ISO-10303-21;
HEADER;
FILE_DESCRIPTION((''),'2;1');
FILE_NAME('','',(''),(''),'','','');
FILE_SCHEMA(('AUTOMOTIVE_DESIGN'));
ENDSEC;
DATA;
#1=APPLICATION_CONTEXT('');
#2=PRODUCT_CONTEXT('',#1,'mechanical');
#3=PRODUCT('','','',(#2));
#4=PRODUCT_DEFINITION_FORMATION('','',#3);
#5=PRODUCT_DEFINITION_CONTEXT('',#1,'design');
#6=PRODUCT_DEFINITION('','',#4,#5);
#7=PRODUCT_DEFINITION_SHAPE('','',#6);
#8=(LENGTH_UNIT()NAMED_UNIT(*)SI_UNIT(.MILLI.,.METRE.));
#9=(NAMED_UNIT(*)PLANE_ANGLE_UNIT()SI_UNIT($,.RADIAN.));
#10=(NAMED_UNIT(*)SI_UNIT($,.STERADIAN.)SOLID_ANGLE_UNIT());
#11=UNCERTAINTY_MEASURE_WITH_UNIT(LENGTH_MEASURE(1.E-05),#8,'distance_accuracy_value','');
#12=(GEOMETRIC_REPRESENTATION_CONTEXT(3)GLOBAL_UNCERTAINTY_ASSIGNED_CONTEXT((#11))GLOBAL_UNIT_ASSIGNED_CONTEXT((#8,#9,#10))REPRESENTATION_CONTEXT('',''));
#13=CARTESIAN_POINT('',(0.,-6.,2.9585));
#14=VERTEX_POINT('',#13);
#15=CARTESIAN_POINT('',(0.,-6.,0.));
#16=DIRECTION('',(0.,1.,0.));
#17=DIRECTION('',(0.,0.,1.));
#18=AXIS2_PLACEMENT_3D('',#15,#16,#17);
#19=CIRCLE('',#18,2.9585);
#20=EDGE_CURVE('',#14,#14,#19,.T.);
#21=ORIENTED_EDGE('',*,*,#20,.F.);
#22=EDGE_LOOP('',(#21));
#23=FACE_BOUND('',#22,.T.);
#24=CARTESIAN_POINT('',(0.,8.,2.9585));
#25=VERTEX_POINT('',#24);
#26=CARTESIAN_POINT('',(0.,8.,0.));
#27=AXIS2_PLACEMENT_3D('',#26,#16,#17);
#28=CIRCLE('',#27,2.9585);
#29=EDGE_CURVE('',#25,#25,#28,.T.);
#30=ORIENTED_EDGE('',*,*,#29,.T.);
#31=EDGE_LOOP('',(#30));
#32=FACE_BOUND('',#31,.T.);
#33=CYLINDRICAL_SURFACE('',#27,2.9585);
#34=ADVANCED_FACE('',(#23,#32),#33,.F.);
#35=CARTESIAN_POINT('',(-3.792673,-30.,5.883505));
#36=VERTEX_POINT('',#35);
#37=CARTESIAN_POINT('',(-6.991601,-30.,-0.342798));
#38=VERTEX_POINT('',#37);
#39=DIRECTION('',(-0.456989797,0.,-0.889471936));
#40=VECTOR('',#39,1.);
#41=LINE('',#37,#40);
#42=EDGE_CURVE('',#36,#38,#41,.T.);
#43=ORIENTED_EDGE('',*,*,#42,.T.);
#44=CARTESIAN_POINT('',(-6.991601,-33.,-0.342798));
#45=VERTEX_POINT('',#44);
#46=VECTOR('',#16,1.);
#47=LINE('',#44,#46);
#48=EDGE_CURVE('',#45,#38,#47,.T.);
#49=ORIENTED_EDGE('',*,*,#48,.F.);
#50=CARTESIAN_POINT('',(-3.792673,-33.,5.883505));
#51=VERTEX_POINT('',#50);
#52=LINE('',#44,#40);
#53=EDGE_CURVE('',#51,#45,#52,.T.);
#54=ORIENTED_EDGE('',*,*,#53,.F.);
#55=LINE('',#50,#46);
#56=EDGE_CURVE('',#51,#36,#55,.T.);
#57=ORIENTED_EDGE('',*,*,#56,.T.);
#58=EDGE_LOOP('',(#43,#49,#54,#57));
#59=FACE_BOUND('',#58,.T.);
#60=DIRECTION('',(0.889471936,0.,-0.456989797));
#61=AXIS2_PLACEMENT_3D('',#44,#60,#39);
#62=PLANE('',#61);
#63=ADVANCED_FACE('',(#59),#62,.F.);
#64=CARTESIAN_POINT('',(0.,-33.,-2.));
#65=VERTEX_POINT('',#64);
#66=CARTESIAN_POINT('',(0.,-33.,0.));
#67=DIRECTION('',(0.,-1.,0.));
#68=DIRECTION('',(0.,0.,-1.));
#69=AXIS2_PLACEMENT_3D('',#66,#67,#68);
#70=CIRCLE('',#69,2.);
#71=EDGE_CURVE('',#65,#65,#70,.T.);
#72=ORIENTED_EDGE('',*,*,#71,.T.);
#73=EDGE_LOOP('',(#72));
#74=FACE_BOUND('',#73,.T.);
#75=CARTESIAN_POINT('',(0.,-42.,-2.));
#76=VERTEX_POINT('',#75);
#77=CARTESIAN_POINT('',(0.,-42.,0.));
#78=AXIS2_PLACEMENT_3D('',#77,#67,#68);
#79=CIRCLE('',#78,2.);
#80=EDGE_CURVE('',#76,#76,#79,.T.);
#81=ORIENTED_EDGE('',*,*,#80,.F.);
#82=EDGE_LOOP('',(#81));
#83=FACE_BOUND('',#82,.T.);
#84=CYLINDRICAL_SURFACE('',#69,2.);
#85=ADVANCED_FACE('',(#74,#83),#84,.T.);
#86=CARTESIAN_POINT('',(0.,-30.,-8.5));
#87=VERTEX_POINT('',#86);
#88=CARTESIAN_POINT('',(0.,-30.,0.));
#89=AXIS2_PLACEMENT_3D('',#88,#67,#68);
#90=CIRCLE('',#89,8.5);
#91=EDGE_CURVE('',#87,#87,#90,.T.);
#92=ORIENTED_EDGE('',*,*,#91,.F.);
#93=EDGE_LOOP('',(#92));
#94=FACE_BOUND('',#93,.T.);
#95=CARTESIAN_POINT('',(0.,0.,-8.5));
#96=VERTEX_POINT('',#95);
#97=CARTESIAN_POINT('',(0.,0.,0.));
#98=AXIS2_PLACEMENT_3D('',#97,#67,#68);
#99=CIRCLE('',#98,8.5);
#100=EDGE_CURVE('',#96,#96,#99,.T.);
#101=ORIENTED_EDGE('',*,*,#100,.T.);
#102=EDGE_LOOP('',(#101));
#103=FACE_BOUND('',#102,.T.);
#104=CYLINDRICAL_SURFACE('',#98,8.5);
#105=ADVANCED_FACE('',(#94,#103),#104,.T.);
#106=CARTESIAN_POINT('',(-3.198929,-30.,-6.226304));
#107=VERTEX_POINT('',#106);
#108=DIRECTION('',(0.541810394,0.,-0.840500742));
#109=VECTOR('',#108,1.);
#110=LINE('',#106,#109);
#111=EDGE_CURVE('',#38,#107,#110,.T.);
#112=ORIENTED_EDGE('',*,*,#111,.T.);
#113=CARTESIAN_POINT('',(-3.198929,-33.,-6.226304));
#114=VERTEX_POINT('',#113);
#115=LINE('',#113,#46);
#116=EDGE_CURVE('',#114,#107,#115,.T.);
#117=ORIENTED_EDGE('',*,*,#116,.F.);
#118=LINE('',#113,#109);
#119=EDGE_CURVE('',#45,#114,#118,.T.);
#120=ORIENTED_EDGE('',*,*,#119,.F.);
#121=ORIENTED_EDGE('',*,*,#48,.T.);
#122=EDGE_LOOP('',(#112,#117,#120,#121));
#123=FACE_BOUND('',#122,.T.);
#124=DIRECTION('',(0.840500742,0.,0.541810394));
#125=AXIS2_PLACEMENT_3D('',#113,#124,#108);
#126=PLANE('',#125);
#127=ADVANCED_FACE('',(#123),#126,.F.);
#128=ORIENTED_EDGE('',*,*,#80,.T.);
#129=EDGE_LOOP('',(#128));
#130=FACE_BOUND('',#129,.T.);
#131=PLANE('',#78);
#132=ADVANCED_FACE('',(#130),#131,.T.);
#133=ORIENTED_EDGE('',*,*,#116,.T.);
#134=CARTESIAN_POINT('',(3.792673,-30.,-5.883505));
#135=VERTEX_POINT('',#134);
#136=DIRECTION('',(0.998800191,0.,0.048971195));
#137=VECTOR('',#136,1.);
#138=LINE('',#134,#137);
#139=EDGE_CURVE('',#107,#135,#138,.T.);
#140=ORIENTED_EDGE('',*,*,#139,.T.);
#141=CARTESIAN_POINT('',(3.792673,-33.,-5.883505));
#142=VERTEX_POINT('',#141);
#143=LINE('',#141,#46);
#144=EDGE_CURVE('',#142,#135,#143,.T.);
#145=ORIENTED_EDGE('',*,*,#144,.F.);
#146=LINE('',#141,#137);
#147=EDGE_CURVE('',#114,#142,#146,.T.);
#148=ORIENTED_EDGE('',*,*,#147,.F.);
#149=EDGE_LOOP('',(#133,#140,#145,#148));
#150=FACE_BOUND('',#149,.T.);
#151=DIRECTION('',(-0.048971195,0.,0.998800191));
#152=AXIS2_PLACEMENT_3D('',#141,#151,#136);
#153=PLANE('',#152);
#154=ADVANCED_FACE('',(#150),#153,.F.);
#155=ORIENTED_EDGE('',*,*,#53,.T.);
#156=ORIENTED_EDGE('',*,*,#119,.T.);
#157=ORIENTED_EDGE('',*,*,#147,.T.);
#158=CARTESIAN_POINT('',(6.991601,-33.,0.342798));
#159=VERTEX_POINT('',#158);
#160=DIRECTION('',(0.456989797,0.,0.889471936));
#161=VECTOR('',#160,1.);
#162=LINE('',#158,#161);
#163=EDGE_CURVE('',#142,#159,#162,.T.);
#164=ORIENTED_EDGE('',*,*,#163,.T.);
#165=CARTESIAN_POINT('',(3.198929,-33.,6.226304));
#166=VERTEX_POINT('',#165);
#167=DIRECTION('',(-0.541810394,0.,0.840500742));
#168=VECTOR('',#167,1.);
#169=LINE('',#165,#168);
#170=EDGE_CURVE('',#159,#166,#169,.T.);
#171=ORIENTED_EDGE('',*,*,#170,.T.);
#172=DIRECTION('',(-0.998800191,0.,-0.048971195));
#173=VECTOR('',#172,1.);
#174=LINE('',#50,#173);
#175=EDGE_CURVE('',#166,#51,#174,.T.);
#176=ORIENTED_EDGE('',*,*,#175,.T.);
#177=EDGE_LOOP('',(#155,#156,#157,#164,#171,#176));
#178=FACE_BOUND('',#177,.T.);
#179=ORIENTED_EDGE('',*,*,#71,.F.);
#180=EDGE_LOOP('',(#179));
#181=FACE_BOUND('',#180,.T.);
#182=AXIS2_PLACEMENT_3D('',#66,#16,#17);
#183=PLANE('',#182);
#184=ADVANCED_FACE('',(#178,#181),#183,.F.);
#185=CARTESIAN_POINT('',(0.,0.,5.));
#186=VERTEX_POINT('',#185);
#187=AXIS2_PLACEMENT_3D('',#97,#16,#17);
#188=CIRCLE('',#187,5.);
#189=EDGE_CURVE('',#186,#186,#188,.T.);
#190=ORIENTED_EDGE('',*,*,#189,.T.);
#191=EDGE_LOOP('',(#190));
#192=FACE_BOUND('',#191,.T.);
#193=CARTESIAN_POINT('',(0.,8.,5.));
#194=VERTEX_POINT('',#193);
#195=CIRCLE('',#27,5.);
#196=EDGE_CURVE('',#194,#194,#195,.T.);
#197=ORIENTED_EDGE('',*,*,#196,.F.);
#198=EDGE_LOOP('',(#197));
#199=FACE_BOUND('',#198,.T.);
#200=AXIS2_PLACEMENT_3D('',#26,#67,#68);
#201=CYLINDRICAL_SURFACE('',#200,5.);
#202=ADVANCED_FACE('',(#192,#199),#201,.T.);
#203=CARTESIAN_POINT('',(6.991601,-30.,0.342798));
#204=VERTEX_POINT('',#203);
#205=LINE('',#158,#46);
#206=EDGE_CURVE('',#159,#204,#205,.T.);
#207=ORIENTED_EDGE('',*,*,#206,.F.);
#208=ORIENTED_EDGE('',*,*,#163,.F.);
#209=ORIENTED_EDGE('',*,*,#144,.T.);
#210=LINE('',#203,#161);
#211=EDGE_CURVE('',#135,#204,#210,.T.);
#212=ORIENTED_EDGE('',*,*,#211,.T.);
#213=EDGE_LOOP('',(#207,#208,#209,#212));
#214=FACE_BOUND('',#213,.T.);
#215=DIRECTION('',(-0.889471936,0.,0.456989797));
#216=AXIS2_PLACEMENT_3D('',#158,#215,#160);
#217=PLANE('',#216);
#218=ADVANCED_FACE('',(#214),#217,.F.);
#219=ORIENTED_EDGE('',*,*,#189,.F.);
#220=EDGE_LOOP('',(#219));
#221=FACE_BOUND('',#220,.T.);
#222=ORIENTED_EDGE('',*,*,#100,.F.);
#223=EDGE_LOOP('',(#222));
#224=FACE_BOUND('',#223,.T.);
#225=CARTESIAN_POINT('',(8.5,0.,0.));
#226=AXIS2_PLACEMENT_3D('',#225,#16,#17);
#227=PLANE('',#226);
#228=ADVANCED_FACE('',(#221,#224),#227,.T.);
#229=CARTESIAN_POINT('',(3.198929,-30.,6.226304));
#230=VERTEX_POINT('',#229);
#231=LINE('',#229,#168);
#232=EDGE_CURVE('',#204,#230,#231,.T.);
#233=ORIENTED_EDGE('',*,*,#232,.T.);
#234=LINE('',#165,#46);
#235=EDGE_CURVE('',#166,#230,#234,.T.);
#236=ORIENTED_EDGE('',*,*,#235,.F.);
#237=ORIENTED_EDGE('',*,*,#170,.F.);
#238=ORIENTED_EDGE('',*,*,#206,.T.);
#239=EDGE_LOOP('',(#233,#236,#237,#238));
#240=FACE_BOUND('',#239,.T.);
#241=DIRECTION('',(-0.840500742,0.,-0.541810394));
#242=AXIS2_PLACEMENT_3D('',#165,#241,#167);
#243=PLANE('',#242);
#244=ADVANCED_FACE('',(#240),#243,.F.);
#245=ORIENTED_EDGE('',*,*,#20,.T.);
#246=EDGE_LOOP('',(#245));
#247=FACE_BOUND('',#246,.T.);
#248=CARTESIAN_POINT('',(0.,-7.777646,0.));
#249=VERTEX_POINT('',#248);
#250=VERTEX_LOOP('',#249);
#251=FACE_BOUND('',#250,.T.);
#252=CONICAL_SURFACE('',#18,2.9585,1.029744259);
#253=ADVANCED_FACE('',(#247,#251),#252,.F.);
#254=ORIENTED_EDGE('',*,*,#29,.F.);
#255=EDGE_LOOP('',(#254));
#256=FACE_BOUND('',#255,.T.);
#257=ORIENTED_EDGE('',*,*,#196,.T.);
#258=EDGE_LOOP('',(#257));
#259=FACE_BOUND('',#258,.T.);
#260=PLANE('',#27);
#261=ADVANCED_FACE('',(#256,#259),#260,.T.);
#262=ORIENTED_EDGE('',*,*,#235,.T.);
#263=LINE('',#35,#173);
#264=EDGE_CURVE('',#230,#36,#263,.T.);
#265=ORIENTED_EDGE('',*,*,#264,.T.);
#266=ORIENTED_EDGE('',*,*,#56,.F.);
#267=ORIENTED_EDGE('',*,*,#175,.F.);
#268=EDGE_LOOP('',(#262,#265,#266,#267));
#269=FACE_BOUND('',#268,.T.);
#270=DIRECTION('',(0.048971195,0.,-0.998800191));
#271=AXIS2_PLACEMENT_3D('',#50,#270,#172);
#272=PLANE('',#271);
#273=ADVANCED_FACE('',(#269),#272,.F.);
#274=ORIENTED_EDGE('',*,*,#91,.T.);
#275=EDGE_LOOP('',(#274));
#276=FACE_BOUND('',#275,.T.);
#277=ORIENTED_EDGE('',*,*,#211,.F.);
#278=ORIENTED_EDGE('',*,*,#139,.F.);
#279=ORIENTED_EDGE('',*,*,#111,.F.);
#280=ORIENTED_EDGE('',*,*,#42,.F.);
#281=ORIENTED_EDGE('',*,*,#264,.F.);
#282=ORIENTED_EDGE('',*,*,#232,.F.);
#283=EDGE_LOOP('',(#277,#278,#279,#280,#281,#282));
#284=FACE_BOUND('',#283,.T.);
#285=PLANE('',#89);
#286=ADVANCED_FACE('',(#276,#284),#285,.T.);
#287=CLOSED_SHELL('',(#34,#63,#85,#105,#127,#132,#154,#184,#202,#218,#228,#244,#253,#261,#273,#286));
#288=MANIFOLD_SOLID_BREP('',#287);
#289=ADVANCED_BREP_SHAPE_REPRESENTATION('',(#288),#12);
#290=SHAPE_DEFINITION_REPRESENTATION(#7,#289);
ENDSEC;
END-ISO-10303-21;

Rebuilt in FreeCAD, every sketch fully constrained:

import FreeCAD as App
import Part
import Sketcher
from FreeCAD import Vector

doc = App.newDocument("Part")
params = doc.addObject("Spreadsheet::Sheet", "Params")
for row, (alias, value) in enumerate([
    ("sketch1_height", "30 mm"),
    ("sketch1_width", "8.5 mm"),
    ("revolution_angle", "360 deg"),
    ("sketch2_length", "7 mm"),
    ("pad1_length", "3 mm"),
    ("sketch3_diameter", "10 mm"),
    ("pad2_length", "8 mm"),
    ("sketch4_width", "2 mm"),
    ("sketch4_height", "9 mm"),
    ("revolution2_angle", "360 deg"),
    ("hole_diameter", "5.917 mm"),
    ("hole_depth", "14 mm"),
], start=1):
    params.set(f"A{row}", alias)
    params.set(f"B{row}", "=" + value)
    params.setAlias(f"B{row}", alias)

body = doc.addObject("PartDesign::Body", "Body")

# Sketch on XY plane
sketch1 = doc.addObject("Sketcher::SketchObject", "Sketch")
body.addObject(sketch1)
sketch1.AttachmentSupport = (doc.XY_Plane, [""])
sketch1.MapMode = "FlatFace"
sketch1.addGeometry([
    Part.LineSegment(Vector(0, 0, 0), Vector(0, -30, 0)),
    Part.LineSegment(Vector(0, -30, 0), Vector(8, -30, 0)),
    Part.LineSegment(Vector(8, -30, 0), Vector(8, 0, 0)),
    Part.LineSegment(Vector(8, 0, 0), Vector(0, 0, 0)),
], False)
sketch1.addConstraint([
    Sketcher.Constraint("Coincident", 0, 2, 1, 1),
    Sketcher.Constraint("Coincident", 1, 2, 2, 1),
    Sketcher.Constraint("Coincident", 2, 2, 3, 1),
    Sketcher.Constraint("Coincident", 3, 2, 0, 1),
    Sketcher.Constraint("Vertical", 0),
    Sketcher.Constraint("Horizontal", 1),
    Sketcher.Constraint("Vertical", 2),
    Sketcher.Constraint("Horizontal", 3),
    Sketcher.Constraint("Coincident", 3, 2, -1, 1),
    Sketcher.Constraint("DistanceY", 0, 2, 0, 1, 30.0),
    Sketcher.Constraint("DistanceX", 1, 1, 1, 2, 8.5),
])
sketch1.setExpression("Constraints[9]", "Params.sketch1_height")
sketch1.setExpression("Constraints[10]", "Params.sketch1_width")
revolution = doc.addObject("PartDesign::Revolution", "Revolution")
body.addObject(revolution)
revolution.Profile = sketch1
revolution.ReferenceAxis = (sketch1, ["V_Axis"])
revolution.setExpression("Angle", "Params.revolution_angle")

# Sketch on XZ plane
sketch2 = doc.addObject("Sketcher::SketchObject", "Sketch001")
body.addObject(sketch2)
sketch2.AttachmentSupport = (doc.XZ_Plane, [""])
sketch2.MapMode = "FlatFace"
sketch2.AttachmentOffset = App.Placement(Vector(0, 0, 30), App.Rotation())
sketch2.addGeometry([
    Part.LineSegment(Vector(3.198929, 6.226304, 0), Vector(-3.792673, 5.883505, 0)),  # 0
    Part.LineSegment(Vector(-3.792673, 5.883505, 0), Vector(-6.991601, -0.342798, 0)),  # 1
    Part.LineSegment(Vector(-6.991601, -0.342798, 0), Vector(-3.198929, -6.226304, 0)),  # 2
    Part.LineSegment(Vector(-3.198929, -6.226304, 0), Vector(3.792673, -5.883505, 0)),  # 3
    Part.LineSegment(Vector(3.792673, -5.883505, 0), Vector(6.991601, 0.342798, 0)),  # 4
    Part.LineSegment(Vector(6.991601, 0.342798, 0), Vector(3.198929, 6.226304, 0)),  # 5
], False)
sketch2.addConstraint([
    Sketcher.Constraint("Coincident", 0, 2, 1, 1),
    Sketcher.Constraint("Coincident", 1, 2, 2, 1),
    Sketcher.Constraint("Coincident", 2, 2, 3, 1),
    Sketcher.Constraint("Coincident", 3, 2, 4, 1),
    Sketcher.Constraint("Coincident", 4, 2, 5, 1),
    Sketcher.Constraint("Coincident", 5, 2, 0, 1),
    Sketcher.Constraint("Symmetric", 0, 2, 3, 2, -1, 1),
    Sketcher.Constraint("Symmetric", 1, 2, 4, 2, -1, 1),
    Sketcher.Constraint("Symmetric", 2, 2, 5, 2, -1, 1),
    Sketcher.Constraint("Equal", 0, 1),
    Sketcher.Constraint("Equal", 1, 2),
    Sketcher.Constraint("Distance", 0, 7.0),
    Sketcher.Constraint("DistanceX", 1, 2, -1, 1, 6.991601),
    Sketcher.Constraint("DistanceY", 1, 2, -1, 1, 0.342798),
    Sketcher.Constraint("DistanceX", 2, 2, 3, 2, 6.991601),
])
sketch2.setExpression("Constraints[11]", "Params.sketch2_length")
pad1 = doc.addObject("PartDesign::Pad", "Pad")
body.addObject(pad1)
pad1.Profile = sketch2
pad1.setExpression("Length", "Params.pad1_length")

# Sketch on XZ plane
sketch3 = doc.addObject("Sketcher::SketchObject", "Sketch002")
body.addObject(sketch3)
sketch3.AttachmentSupport = (doc.XZ_Plane, [""])
sketch3.MapMode = "FlatFace"
sketch3.addGeometry(Part.Circle(Vector(0, 0, 0), Vector(0, 0, 1), 5), False)
sketch3.addConstraint([
    Sketcher.Constraint("Coincident", 0, 3, -1, 1),
    Sketcher.Constraint("Diameter", 0, 10.0),
])
sketch3.setExpression("Constraints[1]", "Params.sketch3_diameter")
pad2 = doc.addObject("PartDesign::Pad", "Pad001")
body.addObject(pad2)
pad2.Profile = sketch3
pad2.setExpression("Length", "Params.pad2_length")
pad2.Reversed = True

# Sketch on XY plane
sketch4 = doc.addObject("Sketcher::SketchObject", "Sketch003")
body.addObject(sketch4)
sketch4.AttachmentSupport = (doc.XY_Plane, [""])
sketch4.MapMode = "FlatFace"
sketch4.addGeometry([
    Part.LineSegment(Vector(0, -33, 0), Vector(0, -42, 0)),
    Part.LineSegment(Vector(0, -42, 0), Vector(2, -42, 0)),
    Part.LineSegment(Vector(2, -42, 0), Vector(2, -33, 0)),
    Part.LineSegment(Vector(2, -33, 0), Vector(0, -33, 0)),
], False)
sketch4.addConstraint([
    Sketcher.Constraint("Coincident", 0, 2, 1, 1),
    Sketcher.Constraint("Coincident", 1, 2, 2, 1),
    Sketcher.Constraint("Coincident", 2, 2, 3, 1),
    Sketcher.Constraint("Coincident", 3, 2, 0, 1),
    Sketcher.Constraint("Vertical", 0),
    Sketcher.Constraint("Horizontal", 1),
    Sketcher.Constraint("Vertical", 2),
    Sketcher.Constraint("Horizontal", 3),
    Sketcher.Constraint("PointOnObject", 0, 2, -2),
    Sketcher.Constraint("DistanceX", 1, 1, 1, 2, 2.0),
    Sketcher.Constraint("DistanceY", 0, 2, 0, 1, 9.0),
    Sketcher.Constraint("DistanceY", 0, 2, -1, 1, 42.0),
])
sketch4.setExpression("Constraints[9]", "Params.sketch4_width")
sketch4.setExpression("Constraints[10]", "Params.sketch4_height")
revolution2 = doc.addObject("PartDesign::Revolution", "Revolution001")
body.addObject(revolution2)
revolution2.Profile = sketch4
revolution2.ReferenceAxis = (sketch4, ["V_Axis"])
revolution2.setExpression("Angle", "Params.revolution2_angle")

# Sketch on XZ plane
sketch5 = doc.addObject("Sketcher::SketchObject", "Sketch004")
body.addObject(sketch5)
sketch5.AttachmentSupport = (doc.XZ_Plane, [""])
sketch5.MapMode = "FlatFace"
sketch5.AttachmentOffset = App.Placement(Vector(0, 0, -8), App.Rotation())
sketch5.addGeometry(Part.Circle(Vector(0, 0, 0), Vector(0, 0, 1), 3), False)
sketch5.addConstraint([
    Sketcher.Constraint("Coincident", 0, 3, -1, 1),
    Sketcher.Constraint("Diameter", 0, 5.917),
])
doc.recompute()
hole = doc.addObject("PartDesign::Hole", "Hole")
body.addObject(hole)
hole.Profile = sketch5
hole.ThreadType = "None"
hole.setExpression("Diameter", "Params.hole_diameter")
hole.DepthType = "Dimension"
hole.setExpression("Depth", "Params.hole_depth")
hole.DrillPoint = "Angled"
hole.DrillPointAngle = 118
hole.Reversed = True

doc.recompute()
